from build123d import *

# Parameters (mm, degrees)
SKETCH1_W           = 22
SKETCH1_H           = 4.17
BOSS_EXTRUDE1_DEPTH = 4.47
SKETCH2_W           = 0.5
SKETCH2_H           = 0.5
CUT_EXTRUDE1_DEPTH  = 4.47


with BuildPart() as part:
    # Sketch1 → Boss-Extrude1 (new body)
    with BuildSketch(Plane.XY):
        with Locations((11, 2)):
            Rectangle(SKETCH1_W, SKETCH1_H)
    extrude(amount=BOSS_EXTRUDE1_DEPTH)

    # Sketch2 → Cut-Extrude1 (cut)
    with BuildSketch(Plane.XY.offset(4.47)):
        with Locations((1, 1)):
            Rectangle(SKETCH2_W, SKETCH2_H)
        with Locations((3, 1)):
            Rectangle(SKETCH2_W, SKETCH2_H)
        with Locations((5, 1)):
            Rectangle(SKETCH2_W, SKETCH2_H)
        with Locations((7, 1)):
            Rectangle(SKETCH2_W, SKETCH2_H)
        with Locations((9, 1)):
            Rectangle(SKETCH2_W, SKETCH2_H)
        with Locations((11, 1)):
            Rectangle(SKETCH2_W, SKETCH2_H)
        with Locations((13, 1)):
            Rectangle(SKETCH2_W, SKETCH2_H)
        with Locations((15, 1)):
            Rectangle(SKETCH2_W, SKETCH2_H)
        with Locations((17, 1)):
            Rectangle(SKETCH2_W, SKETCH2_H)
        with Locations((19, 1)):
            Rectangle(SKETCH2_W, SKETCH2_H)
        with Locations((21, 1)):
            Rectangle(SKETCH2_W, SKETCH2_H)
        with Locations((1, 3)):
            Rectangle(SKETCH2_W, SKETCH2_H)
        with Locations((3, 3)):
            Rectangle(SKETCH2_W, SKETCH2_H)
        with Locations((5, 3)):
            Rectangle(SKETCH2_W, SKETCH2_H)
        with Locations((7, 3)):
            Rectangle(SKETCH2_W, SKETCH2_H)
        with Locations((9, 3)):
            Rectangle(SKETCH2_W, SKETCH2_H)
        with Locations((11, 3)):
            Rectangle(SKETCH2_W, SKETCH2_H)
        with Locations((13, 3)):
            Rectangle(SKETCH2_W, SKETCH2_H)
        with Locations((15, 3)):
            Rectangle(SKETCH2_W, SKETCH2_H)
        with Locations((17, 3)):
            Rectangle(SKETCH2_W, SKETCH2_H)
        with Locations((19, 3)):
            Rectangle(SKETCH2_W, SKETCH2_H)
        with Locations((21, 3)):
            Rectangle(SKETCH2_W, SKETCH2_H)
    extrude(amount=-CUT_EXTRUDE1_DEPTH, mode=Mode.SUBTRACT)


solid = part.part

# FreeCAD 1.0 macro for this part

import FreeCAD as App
import Part
import Sketcher
Q = App.Units.Quantity


def add_polygon(sketch, points):
    """Adds a closed chain of lines whose ends are joined by coincident constraints."""
    first, n = sketch.GeometryCount, len(points)
    for a, b in zip(points, points[1:] + points[:1]):
        sketch.addGeometry(Part.LineSegment(App.Vector(*a, 0), App.Vector(*b, 0)), False)
    for i in range(n):
        sketch.addConstraint(Sketcher.Constraint("Coincident", first + i, 2, first + (i + 1) % n, 1))

doc = App.newDocument("Part")
body = doc.addObject("PartDesign::Body", "Body")

# Sketch on XY plane
sketch1 = body.newObject("Sketcher::SketchObject", "Sketch")
sketch1.AttachmentSupport = (doc.getObject("XY_Plane"), [""])
sketch1.MapMode = "FlatFace"
add_polygon(sketch1, [(0, 4.1), (0, -0.1), (22, -0.1), (22, 4.1)])  # lines 0-3
sketch1.addConstraint(Sketcher.Constraint("Vertical", 0))
sketch1.addConstraint(Sketcher.Constraint("Horizontal", 1))
sketch1.addConstraint(Sketcher.Constraint("Vertical", 2))
sketch1.addConstraint(Sketcher.Constraint("Horizontal", 3))
sketch1.addConstraint(Sketcher.Constraint("PointOnObject", 0, 2, -2))
sketch1.addConstraint(Sketcher.Constraint("DistanceX", 1, 1, 1, 2, Q("22 mm")))
sketch1.addConstraint(Sketcher.Constraint("DistanceY", 0, 2, 0, 1, Q("4.17 mm")))
sketch1.addConstraint(Sketcher.Constraint("DistanceY", 0, 2, -1, 1, Q("0.085 mm")))
pad1 = body.newObject("PartDesign::Pad", "Pad")
pad1.Profile = sketch1
pad1.Length = 4.47

# Sketch on XY plane
sketch2 = body.newObject("Sketcher::SketchObject", "Sketch001")
sketch2.AttachmentSupport = (doc.getObject("XY_Plane"), [""])
sketch2.MapMode = "FlatFace"
sketch2.AttachmentOffset = App.Placement(App.Vector(0, 0, 4.47), App.Rotation())
add_polygon(sketch2, [(0.8, 1.2), (0.8, 0.8), (1.2, 0.8), (1.2, 1.2)])  # lines 0-3
add_polygon(sketch2, [(2.8, 1.2), (2.8, 0.8), (3.2, 0.8), (3.2, 1.2)])  # lines 4-7
add_polygon(sketch2, [(4.8, 1.2), (4.8, 0.8), (5.2, 0.8), (5.2, 1.2)])  # lines 8-11
add_polygon(sketch2, [(6.8, 1.2), (6.8, 0.8), (7.2, 0.8), (7.2, 1.2)])  # lines 12-15
add_polygon(sketch2, [(8.8, 1.2), (8.8, 0.8), (9.2, 0.8), (9.2, 1.2)])  # lines 16-19
add_polygon(sketch2, [(10.8, 1.2), (10.8, 0.8), (11.2, 0.8), (11.2, 1.2)])  # lines 20-23
add_polygon(sketch2, [(12.8, 1.2), (12.8, 0.8), (13.2, 0.8), (13.2, 1.2)])  # lines 24-27
add_polygon(sketch2, [(14.8, 1.2), (14.8, 0.8), (15.2, 0.8), (15.2, 1.2)])  # lines 28-31
add_polygon(sketch2, [(16.8, 1.2), (16.8, 0.8), (17.2, 0.8), (17.2, 1.2)])  # lines 32-35
add_polygon(sketch2, [(18.8, 1.2), (18.8, 0.8), (19.2, 0.8), (19.2, 1.2)])  # lines 36-39
add_polygon(sketch2, [(20.8, 1.2), (20.8, 0.8), (21.2, 0.8), (21.2, 1.2)])  # lines 40-43
add_polygon(sketch2, [(0.8, 3.2), (0.8, 2.8), (1.2, 2.8), (1.2, 3.2)])  # lines 44-47
add_polygon(sketch2, [(2.8, 3.2), (2.8, 2.8), (3.2, 2.8), (3.2, 3.2)])  # lines 48-51
add_polygon(sketch2, [(4.8, 3.2), (4.8, 2.8), (5.2, 2.8), (5.2, 3.2)])  # lines 52-55
add_polygon(sketch2, [(6.8, 3.2), (6.8, 2.8), (7.2, 2.8), (7.2, 3.2)])  # lines 56-59
add_polygon(sketch2, [(8.8, 3.2), (8.8, 2.8), (9.2, 2.8), (9.2, 3.2)])  # lines 60-63
add_polygon(sketch2, [(10.8, 3.2), (10.8, 2.8), (11.2, 2.8), (11.2, 3.2)])  # lines 64-67
add_polygon(sketch2, [(12.8, 3.2), (12.8, 2.8), (13.2, 2.8), (13.2, 3.2)])  # lines 68-71
add_polygon(sketch2, [(14.8, 3.2), (14.8, 2.8), (15.2, 2.8), (15.2, 3.2)])  # lines 72-75
add_polygon(sketch2, [(16.8, 3.2), (16.8, 2.8), (17.2, 2.8), (17.2, 3.2)])  # lines 76-79
add_polygon(sketch2, [(18.8, 3.2), (18.8, 2.8), (19.2, 2.8), (19.2, 3.2)])  # lines 80-83
add_polygon(sketch2, [(20.8, 3.2), (20.8, 2.8), (21.2, 2.8), (21.2, 3.2)])  # lines 84-87
sketch2.addConstraint(Sketcher.Constraint("Vertical", 0))
sketch2.addConstraint(Sketcher.Constraint("Horizontal", 1))
sketch2.addConstraint(Sketcher.Constraint("Vertical", 2))
sketch2.addConstraint(Sketcher.Constraint("Horizontal", 3))
sketch2.addConstraint(Sketcher.Constraint("Vertical", 4))
sketch2.addConstraint(Sketcher.Constraint("Horizontal", 5))
sketch2.addConstraint(Sketcher.Constraint("Vertical", 6))
sketch2.addConstraint(Sketcher.Constraint("Horizontal", 7))
sketch2.addConstraint(Sketcher.Constraint("Vertical", 8))
sketch2.addConstraint(Sketcher.Constraint("Horizontal", 9))
sketch2.addConstraint(Sketcher.Constraint("Vertical", 10))
sketch2.addConstraint(Sketcher.Constraint("Horizontal", 11))
sketch2.addConstraint(Sketcher.Constraint("Vertical", 12))
sketch2.addConstraint(Sketcher.Constraint("Horizontal", 13))
sketch2.addConstraint(Sketcher.Constraint("Vertical", 14))
sketch2.addConstraint(Sketcher.Constraint("Horizontal", 15))
sketch2.addConstraint(Sketcher.Constraint("Vertical", 16))
sketch2.addConstraint(Sketcher.Constraint("Horizontal", 17))
sketch2.addConstraint(Sketcher.Constraint("Vertical", 18))
sketch2.addConstraint(Sketcher.Constraint("Horizontal", 19))
sketch2.addConstraint(Sketcher.Constraint("Vertical", 20))
sketch2.addConstraint(Sketcher.Constraint("Horizontal", 21))
sketch2.addConstraint(Sketcher.Constraint("Vertical", 22))
sketch2.addConstraint(Sketcher.Constraint("Horizontal", 23))
sketch2.addConstraint(Sketcher.Constraint("Vertical", 24))
sketch2.addConstraint(Sketcher.Constraint("Horizontal", 25))
sketch2.addConstraint(Sketcher.Constraint("Vertical", 26))
sketch2.addConstraint(Sketcher.Constraint("Horizontal", 27))
sketch2.addConstraint(Sketcher.Constraint("Vertical", 28))
sketch2.addConstraint(Sketcher.Constraint("Horizontal", 29))
sketch2.addConstraint(Sketcher.Constraint("Vertical", 30))
sketch2.addConstraint(Sketcher.Constraint("Horizontal", 31))
sketch2.addConstraint(Sketcher.Constraint("Vertical", 32))
sketch2.addConstraint(Sketcher.Constraint("Horizontal", 33))
sketch2.addConstraint(Sketcher.Constraint("Vertical", 34))
sketch2.addConstraint(Sketcher.Constraint("Horizontal", 35))
sketch2.addConstraint(Sketcher.Constraint("Vertical", 36))
sketch2.addConstraint(Sketcher.Constraint("Horizontal", 37))
sketch2.addConstraint(Sketcher.Constraint("Vertical", 38))
sketch2.addConstraint(Sketcher.Constraint("Horizontal", 39))
sketch2.addConstraint(Sketcher.Constraint("Vertical", 40))
sketch2.addConstraint(Sketcher.Constraint("Horizontal", 41))
sketch2.addConstraint(Sketcher.Constraint("Vertical", 42))
sketch2.addConstraint(Sketcher.Constraint("Horizontal", 43))
sketch2.addConstraint(Sketcher.Constraint("Vertical", 44))
sketch2.addConstraint(Sketcher.Constraint("Horizontal", 45))
sketch2.addConstraint(Sketcher.Constraint("Vertical", 46))
sketch2.addConstraint(Sketcher.Constraint("Horizontal", 47))
sketch2.addConstraint(Sketcher.Constraint("Vertical", 48))
sketch2.addConstraint(Sketcher.Constraint("Horizontal", 49))
sketch2.addConstraint(Sketcher.Constraint("Vertical", 50))
sketch2.addConstraint(Sketcher.Constraint("Horizontal", 51))
sketch2.addConstraint(Sketcher.Constraint("Vertical", 52))
sketch2.addConstraint(Sketcher.Constraint("Horizontal", 53))
sketch2.addConstraint(Sketcher.Constraint("Vertical", 54))
sketch2.addConstraint(Sketcher.Constraint("Horizontal", 55))
sketch2.addConstraint(Sketcher.Constraint("Vertical", 56))
sketch2.addConstraint(Sketcher.Constraint("Horizontal", 57))
sketch2.addConstraint(Sketcher.Constraint("Vertical", 58))
sketch2.addConstraint(Sketcher.Constraint("Horizontal", 59))
sketch2.addConstraint(Sketcher.Constraint("Vertical", 60))
sketch2.addConstraint(Sketcher.Constraint("Horizontal", 61))
sketch2.addConstraint(Sketcher.Constraint("Vertical", 62))
sketch2.addConstraint(Sketcher.Constraint("Horizontal", 63))
sketch2.addConstraint(Sketcher.Constraint("Vertical", 64))
sketch2.addConstraint(Sketcher.Constraint("Horizontal", 65))
sketch2.addConstraint(Sketcher.Constraint("Vertical", 66))
sketch2.addConstraint(Sketcher.Constraint("Horizontal", 67))
sketch2.addConstraint(Sketcher.Constraint("Vertical", 68))
sketch2.addConstraint(Sketcher.Constraint("Horizontal", 69))
sketch2.addConstraint(Sketcher.Constraint("Vertical", 70))
sketch2.addConstraint(Sketcher.Constraint("Horizontal", 71))
sketch2.addConstraint(Sketcher.Constraint("Vertical", 72))
sketch2.addConstraint(Sketcher.Constraint("Horizontal", 73))
sketch2.addConstraint(Sketcher.Constraint("Vertical", 74))
sketch2.addConstraint(Sketcher.Constraint("Horizontal", 75))
sketch2.addConstraint(Sketcher.Constraint("Vertical", 76))
sketch2.addConstraint(Sketcher.Constraint("Horizontal", 77))
sketch2.addConstraint(Sketcher.Constraint("Vertical", 78))
sketch2.addConstraint(Sketcher.Constraint("Horizontal", 79))
sketch2.addConstraint(Sketcher.Constraint("Vertical", 80))
sketch2.addConstraint(Sketcher.Constraint("Horizontal", 81))
sketch2.addConstraint(Sketcher.Constraint("Vertical", 82))
sketch2.addConstraint(Sketcher.Constraint("Horizontal", 83))
sketch2.addConstraint(Sketcher.Constraint("Vertical", 84))
sketch2.addConstraint(Sketcher.Constraint("Horizontal", 85))
sketch2.addConstraint(Sketcher.Constraint("Vertical", 86))
sketch2.addConstraint(Sketcher.Constraint("Horizontal", 87))
sketch2.addConstraint(Sketcher.Constraint("Horizontal", 1, 2, 4, 2))
sketch2.addConstraint(Sketcher.Constraint("Horizontal", 3, 2, 6, 2))
sketch2.addConstraint(Sketcher.Constraint("Horizontal", 5, 2, 8, 2))
sketch2.addConstraint(Sketcher.Constraint("Horizontal", 7, 2, 10, 2))
sketch2.addConstraint(Sketcher.Constraint("Horizontal", 9, 2, 12, 2))
sketch2.addConstraint(Sketcher.Constraint("Horizontal", 11, 2, 14, 2))
sketch2.addConstraint(Sketcher.Constraint("Horizontal", 13, 2, 16, 2))
sketch2.addConstraint(Sketcher.Constraint("Horizontal", 15, 2, 18, 2))
sketch2.addConstraint(Sketcher.Constraint("Horizontal", 17, 2, 20, 2))
sketch2.addConstraint(Sketcher.Constraint("Horizontal", 19, 2, 22, 2))
sketch2.addConstraint(Sketcher.Constraint("Horizontal", 21, 2, 24, 2))
sketch2.addConstraint(Sketcher.Constraint("Horizontal", 23, 2, 26, 2))
sketch2.addConstraint(Sketcher.Constraint("Horizontal", 25, 2, 28, 2))
sketch2.addConstraint(Sketcher.Constraint("Horizontal", 27, 2, 30, 2))
sketch2.addConstraint(Sketcher.Constraint("Horizontal", 29, 2, 32, 2))
sketch2.addConstraint(Sketcher.Constraint("Horizontal", 31, 2, 34, 2))
sketch2.addConstraint(Sketcher.Constraint("Horizontal", 33, 2, 36, 2))
sketch2.addConstraint(Sketcher.Constraint("Horizontal", 35, 2, 38, 2))
sketch2.addConstraint(Sketcher.Constraint("Horizontal", 37, 2, 40, 2))
sketch2.addConstraint(Sketcher.Constraint("Horizontal", 39, 2, 42, 2))
sketch2.addConstraint(Sketcher.Constraint("Horizontal", 45, 2, 48, 2))
sketch2.addConstraint(Sketcher.Constraint("Horizontal", 47, 2, 50, 2))
sketch2.addConstraint(Sketcher.Constraint("Horizontal", 49, 2, 52, 2))
sketch2.addConstraint(Sketcher.Constraint("Horizontal", 51, 2, 54, 2))
sketch2.addConstraint(Sketcher.Constraint("Horizontal", 53, 2, 56, 2))
sketch2.addConstraint(Sketcher.Constraint("Horizontal", 55, 2, 58, 2))
sketch2.addConstraint(Sketcher.Constraint("Horizontal", 57, 2, 60, 2))
sketch2.addConstraint(Sketcher.Constraint("Horizontal", 59, 2, 62, 2))
sketch2.addConstraint(Sketcher.Constraint("Horizontal", 61, 2, 64, 2))
sketch2.addConstraint(Sketcher.Constraint("Horizontal", 63, 2, 66, 2))
sketch2.addConstraint(Sketcher.Constraint("Horizontal", 65, 2, 68, 2))
sketch2.addConstraint(Sketcher.Constraint("Horizontal", 67, 2, 70, 2))
sketch2.addConstraint(Sketcher.Constraint("Horizontal", 69, 2, 72, 2))
sketch2.addConstraint(Sketcher.Constraint("Horizontal", 71, 2, 74, 2))
sketch2.addConstraint(Sketcher.Constraint("Horizontal", 73, 2, 76, 2))
sketch2.addConstraint(Sketcher.Constraint("Horizontal", 75, 2, 78, 2))
sketch2.addConstraint(Sketcher.Constraint("Horizontal", 77, 2, 80, 2))
sketch2.addConstraint(Sketcher.Constraint("Horizontal", 79, 2, 82, 2))
sketch2.addConstraint(Sketcher.Constraint("Horizontal", 81, 2, 84, 2))
sketch2.addConstraint(Sketcher.Constraint("Horizontal", 83, 2, 86, 2))
sketch2.addConstraint(Sketcher.Constraint("Vertical", 3, 2, 44, 2))
sketch2.addConstraint(Sketcher.Constraint("Vertical", 2, 2, 45, 2))
sketch2.addConstraint(Sketcher.Constraint("Vertical", 7, 2, 48, 2))
sketch2.addConstraint(Sketcher.Constraint("Vertical", 6, 2, 49, 2))
sketch2.addConstraint(Sketcher.Constraint("Vertical", 11, 2, 52, 2))
sketch2.addConstraint(Sketcher.Constraint("Vertical", 10, 2, 53, 2))
sketch2.addConstraint(Sketcher.Constraint("Vertical", 15, 2, 56, 2))
sketch2.addConstraint(Sketcher.Constraint("Vertical", 14, 2, 57, 2))
sketch2.addConstraint(Sketcher.Constraint("Vertical", 19, 2, 60, 2))
sketch2.addConstraint(Sketcher.Constraint("Vertical", 18, 2, 61, 2))
sketch2.addConstraint(Sketcher.Constraint("Vertical", 23, 2, 64, 2))
sketch2.addConstraint(Sketcher.Constraint("Vertical", 22, 2, 65, 2))
sketch2.addConstraint(Sketcher.Constraint("Vertical", 27, 2, 68, 2))
sketch2.addConstraint(Sketcher.Constraint("Vertical", 26, 2, 69, 2))
sketch2.addConstraint(Sketcher.Constraint("Vertical", 31, 2, 72, 2))
sketch2.addConstraint(Sketcher.Constraint("Vertical", 30, 2, 73, 2))
sketch2.addConstraint(Sketcher.Constraint("Vertical", 35, 2, 76, 2))
sketch2.addConstraint(Sketcher.Constraint("Vertical", 34, 2, 77, 2))
sketch2.addConstraint(Sketcher.Constraint("Vertical", 39, 2, 80, 2))
sketch2.addConstraint(Sketcher.Constraint("Vertical", 38, 2, 81, 2))
sketch2.addConstraint(Sketcher.Constraint("Vertical", 43, 2, 84, 2))
sketch2.addConstraint(Sketcher.Constraint("Vertical", 42, 2, 85, 2))
sketch2.addConstraint(Sketcher.Constraint("Equal", 3, 5))
sketch2.addConstraint(Sketcher.Constraint("Equal", 7, 9))
sketch2.addConstraint(Sketcher.Constraint("Equal", 11, 13))
sketch2.addConstraint(Sketcher.Constraint("Equal", 15, 17))
sketch2.addConstraint(Sketcher.Constraint("Equal", 19, 21))
sketch2.addConstraint(Sketcher.Constraint("Equal", 23, 25))
sketch2.addConstraint(Sketcher.Constraint("Equal", 27, 29))
sketch2.addConstraint(Sketcher.Constraint("Equal", 31, 33))
sketch2.addConstraint(Sketcher.Constraint("Equal", 35, 37))
sketch2.addConstraint(Sketcher.Constraint("Equal", 39, 41))
sketch2.addConstraint(Sketcher.Constraint("Equal", 87, 0))
sketch2.addConstraint(Sketcher.Constraint("Equal", 42, 44))
sketch2.addConstraint(Sketcher.Constraint("DistanceX", 1, 1, 1, 2, Q("0.5 mm")))
sketch2.addConstraint(Sketcher.Constraint("DistanceX", -1, 1, 0, 2, Q("0.75 mm")))
sketch2.addConstraint(Sketcher.Constraint("DistanceY", -1, 1, 0, 2, Q("0.75 mm")))
sketch2.addConstraint(Sketcher.Constraint("DistanceX", -1, 1, 4, 2, Q("2.75 mm")))
sketch2.addConstraint(Sketcher.Constraint("DistanceX", -1, 1, 8, 2, Q("4.75 mm")))
sketch2.addConstraint(Sketcher.Constraint("DistanceX", -1, 1, 12, 2, Q("6.75 mm")))
sketch2.addConstraint(Sketcher.Constraint("DistanceX", -1, 1, 16, 2, Q("8.75 mm")))
sketch2.addConstraint(Sketcher.Constraint("DistanceX", -1, 1, 20, 2, Q("10.75 mm")))
sketch2.addConstraint(Sketcher.Constraint("DistanceX", -1, 1, 24, 2, Q("12.75 mm")))
sketch2.addConstraint(Sketcher.Constraint("DistanceX", -1, 1, 28, 2, Q("14.75 mm")))
sketch2.addConstraint(Sketcher.Constraint("DistanceX", -1, 1, 32, 2, Q("16.75 mm")))
sketch2.addConstraint(Sketcher.Constraint("DistanceX", -1, 1, 36, 2, Q("18.75 mm")))
sketch2.addConstraint(Sketcher.Constraint("DistanceX", -1, 1, 40, 2, Q("20.75 mm")))
sketch2.addConstraint(Sketcher.Constraint("DistanceY", -1, 1, 44, 2, Q("2.75 mm")))
pocket1 = body.newObject("PartDesign::Pocket", "Pocket")
pocket1.Profile = sketch2
pocket1.Length = 4.47

doc.recompute()
